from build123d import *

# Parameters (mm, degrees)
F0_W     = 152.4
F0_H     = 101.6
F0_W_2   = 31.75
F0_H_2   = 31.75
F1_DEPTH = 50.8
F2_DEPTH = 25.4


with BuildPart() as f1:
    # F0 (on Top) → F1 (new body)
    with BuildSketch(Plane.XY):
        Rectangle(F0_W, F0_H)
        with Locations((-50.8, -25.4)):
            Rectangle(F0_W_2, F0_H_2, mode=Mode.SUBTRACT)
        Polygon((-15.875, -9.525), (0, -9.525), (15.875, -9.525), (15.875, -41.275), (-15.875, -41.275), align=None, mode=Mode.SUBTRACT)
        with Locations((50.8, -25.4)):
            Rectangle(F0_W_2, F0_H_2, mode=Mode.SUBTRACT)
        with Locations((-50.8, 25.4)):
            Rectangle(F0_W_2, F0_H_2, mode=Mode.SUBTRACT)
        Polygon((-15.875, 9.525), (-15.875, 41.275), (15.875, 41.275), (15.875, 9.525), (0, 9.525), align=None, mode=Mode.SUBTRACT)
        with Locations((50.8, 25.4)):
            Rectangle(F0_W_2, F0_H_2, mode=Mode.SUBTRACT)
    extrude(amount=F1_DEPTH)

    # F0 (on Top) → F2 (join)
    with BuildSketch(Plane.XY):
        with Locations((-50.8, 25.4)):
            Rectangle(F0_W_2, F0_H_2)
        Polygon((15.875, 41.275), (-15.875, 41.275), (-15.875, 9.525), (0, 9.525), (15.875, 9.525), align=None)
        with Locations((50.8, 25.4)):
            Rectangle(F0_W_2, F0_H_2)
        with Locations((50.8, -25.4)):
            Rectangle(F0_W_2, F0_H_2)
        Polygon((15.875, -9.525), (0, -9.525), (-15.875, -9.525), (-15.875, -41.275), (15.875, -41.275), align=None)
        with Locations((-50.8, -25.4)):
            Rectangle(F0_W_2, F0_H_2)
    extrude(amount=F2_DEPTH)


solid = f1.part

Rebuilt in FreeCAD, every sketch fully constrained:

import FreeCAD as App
import Part
import Sketcher

V = App.Vector
Q = App.Units.Quantity

doc = App.newDocument("Part")
body = doc.addObject("PartDesign::Body", "Body")

# Sketch on XY plane
sketch1 = body.newObject("Sketcher::SketchObject", "Sketch")
sketch1.AttachmentSupport = (doc.getObject("XY_Plane"), [""])
sketch1.MapMode = "FlatFace"
sketch1.addGeometry(Part.LineSegment(V(-76, 51, 0), V(-76, -51, 0)), False)
sketch1.addGeometry(Part.LineSegment(V(-76, -51, 0), V(76, -51, 0)), False)
sketch1.addGeometry(Part.LineSegment(V(76, -51, 0), V(76, 51, 0)), False)
sketch1.addGeometry(Part.LineSegment(V(76, 51, 0), V(-76, 51, 0)), False)
sketch1.addGeometry(Part.LineSegment(V(-35, -41, 0), V(-67, -41, 0)), False)
sketch1.addGeometry(Part.LineSegment(V(-67, -41, 0), V(-67, -10, 0)), False)
sketch1.addGeometry(Part.LineSegment(V(-67, -10, 0), V(-35, -10, 0)), False)
sketch1.addGeometry(Part.LineSegment(V(-35, -10, 0), V(-35, -41, 0)), False)
sketch1.addGeometry(Part.LineSegment(V(-16, -41, 0), V(-16, -10, 0)), False)
sketch1.addGeometry(Part.LineSegment(V(-16, -10, 0), V(16, -10, 0)), False)
sketch1.addGeometry(Part.LineSegment(V(16, -10, 0), V(16, -41, 0)), False)
sketch1.addGeometry(Part.LineSegment(V(16, -41, 0), V(-16, -41, 0)), False)
sketch1.addGeometry(Part.LineSegment(V(67, -41, 0), V(35, -41, 0)), False)
sketch1.addGeometry(Part.LineSegment(V(35, -41, 0), V(35, -10, 0)), False)
sketch1.addGeometry(Part.LineSegment(V(35, -10, 0), V(67, -10, 0)), False)
sketch1.addGeometry(Part.LineSegment(V(67, -10, 0), V(67, -41, 0)), False)
sketch1.addGeometry(Part.LineSegment(V(-35, 10, 0), V(-67, 10, 0)), False)
sketch1.addGeometry(Part.LineSegment(V(-67, 10, 0), V(-67, 41, 0)), False)
sketch1.addGeometry(Part.LineSegment(V(-67, 41, 0), V(-35, 41, 0)), False)
sketch1.addGeometry(Part.LineSegment(V(-35, 41, 0), V(-35, 10, 0)), False)
sketch1.addGeometry(Part.LineSegment(V(16, 10, 0), V(-16, 10, 0)), False)
sketch1.addGeometry(Part.LineSegment(V(-16, 10, 0), V(-16, 41, 0)), False)
sketch1.addGeometry(Part.LineSegment(V(-16, 41, 0), V(16, 41, 0)), False)
sketch1.addGeometry(Part.LineSegment(V(16, 41, 0), V(16, 10, 0)), False)
sketch1.addGeometry(Part.LineSegment(V(67, 10, 0), V(35, 10, 0)), False)
sketch1.addGeometry(Part.LineSegment(V(35, 10, 0), V(35, 41, 0)), False)
sketch1.addGeometry(Part.LineSegment(V(35, 41, 0), V(67, 41, 0)), False)
sketch1.addGeometry(Part.LineSegment(V(67, 41, 0), V(67, 10, 0)), False)
sketch1.addConstraint(Sketcher.Constraint("Coincident", 0, 2, 1, 1))
sketch1.addConstraint(Sketcher.Constraint("Coincident", 1, 2, 2, 1))
sketch1.addConstraint(Sketcher.Constraint("Coincident", 2, 2, 3, 1))
sketch1.addConstraint(Sketcher.Constraint("Coincident", 3, 2, 0, 1))
sketch1.addConstraint(Sketcher.Constraint("Coincident", 4, 2, 5, 1))
sketch1.addConstraint(Sketcher.Constraint("Coincident", 5, 2, 6, 1))
sketch1.addConstraint(Sketcher.Constraint("Coincident", 6, 2, 7, 1))
sketch1.addConstraint(Sketcher.Constraint("Coincident", 7, 2, 4, 1))
sketch1.addConstraint(Sketcher.Constraint("Coincident", 8, 2, 9, 1))
sketch1.addConstraint(Sketcher.Constraint("Coincident", 9, 2, 10, 1))
sketch1.addConstraint(Sketcher.Constraint("Coincident", 10, 2, 11, 1))
sketch1.addConstraint(Sketcher.Constraint("Coincident", 11, 2, 8, 1))
sketch1.addConstraint(Sketcher.Constraint("Coincident", 12, 2, 13, 1))
sketch1.addConstraint(Sketcher.Constraint("Coincident", 13, 2, 14, 1))
sketch1.addConstraint(Sketcher.Constraint("Coincident", 14, 2, 15, 1))
sketch1.addConstraint(Sketcher.Constraint("Coincident", 15, 2, 12, 1))
sketch1.addConstraint(Sketcher.Constraint("Coincident", 16, 2, 17, 1))
sketch1.addConstraint(Sketcher.Constraint("Coincident", 17, 2, 18, 1))
sketch1.addConstraint(Sketcher.Constraint("Coincident", 18, 2, 19, 1))
sketch1.addConstraint(Sketcher.Constraint("Coincident", 19, 2, 16, 1))
sketch1.addConstraint(Sketcher.Constraint("Coincident", 20, 2, 21, 1))
sketch1.addConstraint(Sketcher.Constraint("Coincident", 21, 2, 22, 1))
sketch1.addConstraint(Sketcher.Constraint("Coincident", 22, 2, 23, 1))
sketch1.addConstraint(Sketcher.Constraint("Coincident", 23, 2, 20, 1))
sketch1.addConstraint(Sketcher.Constraint("Coincident", 24, 2, 25, 1))
sketch1.addConstraint(Sketcher.Constraint("Coincident", 25, 2, 26, 1))
sketch1.addConstraint(Sketcher.Constraint("Coincident", 26, 2, 27, 1))
sketch1.addConstraint(Sketcher.Constraint("Coincident", 27, 2, 24, 1))
sketch1.addConstraint(Sketcher.Constraint("Vertical", 0))
sketch1.addConstraint(Sketcher.Constraint("Horizontal", 1))
sketch1.addConstraint(Sketcher.Constraint("Vertical", 2))
sketch1.addConstraint(Sketcher.Constraint("Horizontal", 3))
sketch1.addConstraint(Sketcher.Constraint("Horizontal", 4))
sketch1.addConstraint(Sketcher.Constraint("Vertical", 5))
sketch1.addConstraint(Sketcher.Constraint("Horizontal", 6))
sketch1.addConstraint(Sketcher.Constraint("Vertical", 7))
sketch1.addConstraint(Sketcher.Constraint("Vertical", 8))
sketch1.addConstraint(Sketcher.Constraint("Horizontal", 9))
sketch1.addConstraint(Sketcher.Constraint("Vertical", 10))
sketch1.addConstraint(Sketcher.Constraint("Horizontal", 11))
sketch1.addConstraint(Sketcher.Constraint("Horizontal", 12))
sketch1.addConstraint(Sketcher.Constraint("Vertical", 13))
sketch1.addConstraint(Sketcher.Constraint("Horizontal", 14))
sketch1.addConstraint(Sketcher.Constraint("Vertical", 15))
sketch1.addConstraint(Sketcher.Constraint("Horizontal", 16))
sketch1.addConstraint(Sketcher.Constraint("Vertical", 17))
sketch1.addConstraint(Sketcher.Constraint("Horizontal", 18))
sketch1.addConstraint(Sketcher.Constraint("Vertical", 19))
sketch1.addConstraint(Sketcher.Constraint("Horizontal", 20))
sketch1.addConstraint(Sketcher.Constraint("Vertical", 21))
sketch1.addConstraint(Sketcher.Constraint("Horizontal", 22))
sketch1.addConstraint(Sketcher.Constraint("Vertical", 23))
sketch1.addConstraint(Sketcher.Constraint("Horizontal", 24))
sketch1.addConstraint(Sketcher.Constraint("Vertical", 25))
sketch1.addConstraint(Sketcher.Constraint("Horizontal", 26))
sketch1.addConstraint(Sketcher.Constraint("Vertical", 27))
sketch1.addConstraint(Sketcher.Constraint("Symmetric", 0, 2, 2, 2, -1, 1))
sketch1.addConstraint(Sketcher.Constraint("Symmetric", 14, 2, 16, 2, -1, 1))
sketch1.addConstraint(Sketcher.Constraint("Symmetric", 12, 2, 18, 2, -1, 1))
sketch1.addConstraint(Sketcher.Constraint("Symmetric", 9, 2, 20, 2, -1, 1))
sketch1.addConstraint(Sketcher.Constraint("Symmetric", 11, 2, 22, 2, -1, 1))
sketch1.addConstraint(Sketcher.Constraint("Symmetric", 6, 2, 24, 2, -1, 1))
sketch1.addConstraint(Sketcher.Constraint("Symmetric", 4, 2, 26, 2, -1, 1))
sketch1.addConstraint(Sketcher.Constraint("Symmetric", 7, 2, 12, 2, -2))
sketch1.addConstraint(Sketcher.Constraint("Symmetric", 5, 2, 14, 2, -2))
sketch1.addConstraint(Sketcher.Constraint("Horizontal", 6, 2, 8, 2))
sketch1.addConstraint(Sketcher.Constraint("Horizontal", 7, 2, 10, 2))
sketch1.addConstraint(Sketcher.Constraint("Vertical", 11, 2, 20, 2))
sketch1.addConstraint(Sketcher.Constraint("Equal", 6, 9))
sketch1.addConstraint(Sketcher.Constraint("Equal", 26, 5))
sketch1.addConstraint(Sketcher.Constraint("DistanceX", 1, 1, 1, 2, Q("6 in")))
sketch1.addConstraint(Sketcher.Constraint("DistanceY", 0, 2, 0, 1, Q("4 in")))
sketch1.addConstraint(Sketcher.Constraint("DistanceX", 5, 2, 8, 2, Q("2 in")))
sketch1.addConstraint(Sketcher.Constraint("DistanceY", 4, 2, 16, 2, Q("2 in")))
sketch1.addConstraint(Sketcher.Constraint("DistanceX", 4, 2, 4, 1, Q("1.25 in")))
pad1 = body.newObject("PartDesign::Pad", "Pad")
pad1.Profile = sketch1
pad1.Length = Q("2 in")

# Sketch on XY plane
sketch2 = body.newObject("Sketcher::SketchObject", "Sketch001")
sketch2.AttachmentSupport = (doc.getObject("XY_Plane"), [""])
sketch2.MapMode = "FlatFace"
sketch2.addGeometry(Part.LineSegment(V(-67, 41, 0), V(-67, 10, 0)), False)
sketch2.addGeometry(Part.LineSegment(V(-67, 10, 0), V(-35, 10, 0)), False)
sketch2.addGeometry(Part.LineSegment(V(-35, 10, 0), V(-35, 41, 0)), False)
sketch2.addGeometry(Part.LineSegment(V(-35, 41, 0), V(-67, 41, 0)), False)
sketch2.addGeometry(Part.LineSegment(V(16, 41, 0), V(-16, 41, 0)), False)
sketch2.addGeometry(Part.LineSegment(V(-16, 41, 0), V(-16, 10, 0)), False)
sketch2.addGeometry(Part.LineSegment(V(-16, 10, 0), V(16, 10, 0)), False)
sketch2.addGeometry(Part.LineSegment(V(16, 10, 0), V(16, 41, 0)), False)
sketch2.addGeometry(Part.LineSegment(V(35, 41, 0), V(35, 10, 0)), False)
sketch2.addGeometry(Part.LineSegment(V(35, 10, 0), V(67, 10, 0)), False)
sketch2.addGeometry(Part.LineSegment(V(67, 10, 0), V(67, 41, 0)), False)
sketch2.addGeometry(Part.LineSegment(V(67, 41, 0), V(35, 41, 0)), False)
sketch2.addGeometry(Part.LineSegment(V(35, -10, 0), V(35, -41, 0)), False)
sketch2.addGeometry(Part.LineSegment(V(35, -41, 0), V(67, -41, 0)), False)
sketch2.addGeometry(Part.LineSegment(V(67, -41, 0), V(67, -10, 0)), False)
sketch2.addGeometry(Part.LineSegment(V(67, -10, 0), V(35, -10, 0)), False)
sketch2.addGeometry(Part.LineSegment(V(16, -10, 0), V(-16, -10, 0)), False)
sketch2.addGeometry(Part.LineSegment(V(-16, -10, 0), V(-16, -41, 0)), False)
sketch2.addGeometry(Part.LineSegment(V(-16, -41, 0), V(16, -41, 0)), False)
sketch2.addGeometry(Part.LineSegment(V(16, -41, 0), V(16, -10, 0)), False)
sketch2.addGeometry(Part.LineSegment(V(-67, -10, 0), V(-67, -41, 0)), False)
sketch2.addGeometry(Part.LineSegment(V(-67, -41, 0), V(-35, -41, 0)), False)
sketch2.addGeometry(Part.LineSegment(V(-35, -41, 0), V(-35, -10, 0)), False)
sketch2.addGeometry(Part.LineSegment(V(-35, -10, 0), V(-67, -10, 0)), False)
sketch2.addConstraint(Sketcher.Constraint("Coincident", 0, 2, 1, 1))
sketch2.addConstraint(Sketcher.Constraint("Coincident", 1, 2, 2, 1))
sketch2.addConstraint(Sketcher.Constraint("Coincident", 2, 2, 3, 1))
sketch2.addConstraint(Sketcher.Constraint("Coincident", 3, 2, 0, 1))
sketch2.addConstraint(Sketcher.Constraint("Coincident", 4, 2, 5, 1))
sketch2.addConstraint(Sketcher.Constraint("Coincident", 5, 2, 6, 1))
sketch2.addConstraint(Sketcher.Constraint("Coincident", 6, 2, 7, 1))
sketch2.addConstraint(Sketcher.Constraint("Coincident", 7, 2, 4, 1))
sketch2.addConstraint(Sketcher.Constraint("Coincident", 8, 2, 9, 1))
sketch2.addConstraint(Sketcher.Constraint("Coincident", 9, 2, 10, 1))
sketch2.addConstraint(Sketcher.Constraint("Coincident", 10, 2, 11, 1))
sketch2.addConstraint(Sketcher.Constraint("Coincident", 11, 2, 8, 1))
sketch2.addConstraint(Sketcher.Constraint("Coincident", 12, 2, 13, 1))
sketch2.addConstraint(Sketcher.Constraint("Coincident", 13, 2, 14, 1))
sketch2.addConstraint(Sketcher.Constraint("Coincident", 14, 2, 15, 1))
sketch2.addConstraint(Sketcher.Constraint("Coincident", 15, 2, 12, 1))
sketch2.addConstraint(Sketcher.Constraint("Coincident", 16, 2, 17, 1))
sketch2.addConstraint(Sketcher.Constraint("Coincident", 17, 2, 18, 1))
sketch2.addConstraint(Sketcher.Constraint("Coincident", 18, 2, 19, 1))
sketch2.addConstraint(Sketcher.Constraint("Coincident", 19, 2, 16, 1))
sketch2.addConstraint(Sketcher.Constraint("Coincident", 20, 2, 21, 1))
sketch2.addConstraint(Sketcher.Constraint("Coincident", 21, 2, 22, 1))
sketch2.addConstraint(Sketcher.Constraint("Coincident", 22, 2, 23, 1))
sketch2.addConstraint(Sketcher.Constraint("Coincident", 23, 2, 20, 1))
sketch2.addConstraint(Sketcher.Constraint("Vertical", 0))
sketch2.addConstraint(Sketcher.Constraint("Horizontal", 1))
sketch2.addConstraint(Sketcher.Constraint("Vertical", 2))
sketch2.addConstraint(Sketcher.Constraint("Horizontal", 3))
sketch2.addConstraint(Sketcher.Constraint("Horizontal", 4))
sketch2.addConstraint(Sketcher.Constraint("Vertical", 5))
sketch2.addConstraint(Sketcher.Constraint("Horizontal", 6))
sketch2.addConstraint(Sketcher.Constraint("Vertical", 7))
sketch2.addConstraint(Sketcher.Constraint("Vertical", 8))
sketch2.addConstraint(Sketcher.Constraint("Horizontal", 9))
sketch2.addConstraint(Sketcher.Constraint("Vertical", 10))
sketch2.addConstraint(Sketcher.Constraint("Horizontal", 11))
sketch2.addConstraint(Sketcher.Constraint("Vertical", 12))
sketch2.addConstraint(Sketcher.Constraint("Horizontal", 13))
sketch2.addConstraint(Sketcher.Constraint("Vertical", 14))
sketch2.addConstraint(Sketcher.Constraint("Horizontal", 15))
sketch2.addConstraint(Sketcher.Constraint("Horizontal", 16))
sketch2.addConstraint(Sketcher.Constraint("Vertical", 17))
sketch2.addConstraint(Sketcher.Constraint("Horizontal", 18))
sketch2.addConstraint(Sketcher.Constraint("Vertical", 19))
sketch2.addConstraint(Sketcher.Constraint("Vertical", 20))
sketch2.addConstraint(Sketcher.Constraint("Horizontal", 21))
sketch2.addConstraint(Sketcher.Constraint("Vertical", 22))
sketch2.addConstraint(Sketcher.Constraint("Horizontal", 23))
sketch2.addConstraint(Sketcher.Constraint("Symmetric", 2, 2, 12, 2, -1, 1))
sketch2.addConstraint(Sketcher.Constraint("Symmetric", 0, 2, 14, 2, -1, 1))
sketch2.addConstraint(Sketcher.Constraint("Symmetric", 6, 2, 16, 2, -1, 1))
sketch2.addConstraint(Sketcher.Constraint("Symmetric", 4, 2, 18, 2, -1, 1))
sketch2.addConstraint(Sketcher.Constraint("Symmetric", 10, 2, 20, 2, -1, 1))
sketch2.addConstraint(Sketcher.Constraint("Symmetric", 8, 2, 22, 2, -1, 1))
sketch2.addConstraint(Sketcher.Constraint("Symmetric", 1, 2, 8, 2, -2))
sketch2.addConstraint(Sketcher.Constraint("Symmetric", 3, 2, 10, 2, -2))
sketch2.addConstraint(Sketcher.Constraint("Horizontal", 3, 2, 4, 2))
sketch2.addConstraint(Sketcher.Constraint("Horizontal", 1, 2, 5, 2))
sketch2.addConstraint(Sketcher.Constraint("Vertical", 5, 2, 16, 2))
sketch2.addConstraint(Sketcher.Constraint("Equal", 3, 4))
sketch2.addConstraint(Sketcher.Constraint("Equal", 23, 0))
sketch2.addConstraint(Sketcher.Constraint("DistanceX", 3, 2, 4, 2, Q("2 in")))
sketch2.addConstraint(Sketcher.Constraint("DistanceY", 12, 2, 8, 2, Q("2 in")))
sketch2.addConstraint(Sketcher.Constraint("DistanceX", 1, 1, 1, 2, Q("1.25 in")))
pad2 = body.newObject("PartDesign::Pad", "Pad001")
pad2.Profile = sketch2
pad2.Length = Q("1 in")

doc.recompute()
